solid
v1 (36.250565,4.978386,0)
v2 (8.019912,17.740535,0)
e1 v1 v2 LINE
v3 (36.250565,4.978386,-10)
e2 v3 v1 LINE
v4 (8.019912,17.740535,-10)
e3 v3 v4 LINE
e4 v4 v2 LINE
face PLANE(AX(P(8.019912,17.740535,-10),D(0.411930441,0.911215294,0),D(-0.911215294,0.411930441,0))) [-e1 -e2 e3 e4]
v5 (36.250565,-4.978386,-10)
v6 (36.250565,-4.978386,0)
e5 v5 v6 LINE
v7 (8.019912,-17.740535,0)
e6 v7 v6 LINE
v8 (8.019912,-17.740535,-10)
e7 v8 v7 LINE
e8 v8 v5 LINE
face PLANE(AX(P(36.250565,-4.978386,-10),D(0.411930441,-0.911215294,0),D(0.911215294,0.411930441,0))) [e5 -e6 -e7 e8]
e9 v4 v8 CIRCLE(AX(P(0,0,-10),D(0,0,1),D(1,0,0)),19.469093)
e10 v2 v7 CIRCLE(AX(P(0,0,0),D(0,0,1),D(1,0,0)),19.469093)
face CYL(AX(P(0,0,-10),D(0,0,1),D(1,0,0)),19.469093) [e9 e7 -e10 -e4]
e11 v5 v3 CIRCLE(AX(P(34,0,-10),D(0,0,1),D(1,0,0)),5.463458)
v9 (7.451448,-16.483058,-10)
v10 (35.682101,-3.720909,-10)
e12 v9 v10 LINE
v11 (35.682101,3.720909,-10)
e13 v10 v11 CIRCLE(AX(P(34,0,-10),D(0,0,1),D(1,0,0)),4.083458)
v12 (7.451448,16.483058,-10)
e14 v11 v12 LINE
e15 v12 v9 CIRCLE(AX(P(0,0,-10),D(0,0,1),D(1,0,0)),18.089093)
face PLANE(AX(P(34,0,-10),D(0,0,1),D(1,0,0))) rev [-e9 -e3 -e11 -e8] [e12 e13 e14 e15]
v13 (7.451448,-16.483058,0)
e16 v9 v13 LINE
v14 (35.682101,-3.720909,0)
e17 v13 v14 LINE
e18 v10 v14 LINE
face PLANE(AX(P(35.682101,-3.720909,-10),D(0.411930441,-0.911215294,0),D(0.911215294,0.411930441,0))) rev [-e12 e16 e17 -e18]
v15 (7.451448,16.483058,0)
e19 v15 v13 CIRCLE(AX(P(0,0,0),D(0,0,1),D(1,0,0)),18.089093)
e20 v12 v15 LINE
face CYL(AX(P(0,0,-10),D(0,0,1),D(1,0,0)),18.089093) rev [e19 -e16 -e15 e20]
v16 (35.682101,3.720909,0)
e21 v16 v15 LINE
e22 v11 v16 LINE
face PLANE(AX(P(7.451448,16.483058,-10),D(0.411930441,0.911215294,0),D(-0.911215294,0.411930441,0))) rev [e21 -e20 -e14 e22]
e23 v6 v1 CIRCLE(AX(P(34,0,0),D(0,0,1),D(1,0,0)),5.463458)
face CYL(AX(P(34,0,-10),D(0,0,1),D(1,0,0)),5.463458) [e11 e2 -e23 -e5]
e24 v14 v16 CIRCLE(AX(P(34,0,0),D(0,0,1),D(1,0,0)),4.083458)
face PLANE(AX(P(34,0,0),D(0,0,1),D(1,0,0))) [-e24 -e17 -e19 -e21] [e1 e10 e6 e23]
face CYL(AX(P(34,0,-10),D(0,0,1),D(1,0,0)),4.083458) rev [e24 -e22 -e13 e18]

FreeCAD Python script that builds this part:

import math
import FreeCAD as App
import Part
import Sketcher
from FreeCAD import Vector

doc = App.newDocument("Part")
params = doc.addObject("Spreadsheet::Sheet", "Params")
for row, (alias, value) in enumerate([
    ("pad1_length", "10 mm"),
], start=1):
    params.set(f"A{row}", alias)
    params.set(f"B{row}", "=" + value)
    params.setAlias(f"B{row}", alias)

body = doc.addObject("PartDesign::Body", "Body")

# Sketch on XY plane
sketch1 = doc.addObject("Sketcher::SketchObject", "Sketch")
body.addObject(sketch1)
sketch1.AttachmentSupport = (doc.XY_Plane, [""])
sketch1.MapMode = "FlatFace"
sketch1.addGeometry(Part.LineSegment(Vector(36.250565, 4.978386, 0), Vector(8.019912, 17.740535, 0)), False)
sketch1.addGeometry(Part.ArcOfCircle(Part.Circle(Vector(0, 0, 0), Vector(0, 0, 1), 19.469093), math.radians(65.67384), math.radians(294.32616)), False)
sketch1.addGeometry(Part.LineSegment(Vector(8.019912, -17.740535, 0), Vector(36.250565, -4.978386, 0)), False)
sketch1.addGeometry(Part.ArcOfCircle(Part.Circle(Vector(34, 0, 0), Vector(0, 0, 1), 5.463458), math.radians(-65.67384), math.radians(65.67384)), False)
sketch1.addGeometry(Part.LineSegment(Vector(35.682101, -3.720909, 0), Vector(7.451448, -16.483058, 0)), False)
sketch1.addGeometry(Part.ArcOfCircle(Part.Circle(Vector(0, 0, 0), Vector(0, 0, 1), 18.089093), math.radians(65.67384), math.radians(294.32616)), False)
sketch1.addGeometry(Part.LineSegment(Vector(7.451448, 16.483058, 0), Vector(35.682101, 3.720909, 0)), False)
sketch1.addGeometry(Part.ArcOfCircle(Part.Circle(Vector(34, 0, 0), Vector(0, 0, 1), 4.083458), math.radians(-65.67384), math.radians(65.67384)), False)
sketch1.addConstraint(Sketcher.Constraint("Tangent", 0, 2, 1, 1))
sketch1.addConstraint(Sketcher.Constraint("Tangent", 1, 2, 2, 1))
sketch1.addConstraint(Sketcher.Constraint("Tangent", 2, 2, 3, 1))
sketch1.addConstraint(Sketcher.Constraint("Tangent", 3, 2, 0, 1))
sketch1.addConstraint(Sketcher.Constraint("Tangent", 4, 2, 5, 2))
sketch1.addConstraint(Sketcher.Constraint("Tangent", 5, 1, 6, 1))
sketch1.addConstraint(Sketcher.Constraint("Tangent", 6, 2, 7, 2))
sketch1.addConstraint(Sketcher.Constraint("Tangent", 7, 1, 4, 1))
sketch1.addConstraint(Sketcher.Constraint("Coincident", 1, 3, -1, 1))
sketch1.addConstraint(Sketcher.Constraint("Coincident", 5, 3, -1, 1))
sketch1.addConstraint(Sketcher.Constraint("Coincident", 7, 3, 3, 3))
sketch1.addConstraint(Sketcher.Constraint("PointOnObject", 3, 3, -1))
sketch1.addConstraint(Sketcher.Constraint("Parallel", 2, 4))
sketch1.addConstraint(Sketcher.Constraint("DistanceX", -1, 1, 3, 3, 34.0))
sketch1.addConstraint(Sketcher.Constraint("Radius", 1, 19.469093))
sketch1.addConstraint(Sketcher.Constraint("Radius", 3, 5.463458))
sketch1.addConstraint(Sketcher.Constraint("Radius", 5, 18.089093))
pad1 = doc.addObject("PartDesign::Pad", "Pad")
body.addObject(pad1)
pad1.Profile = sketch1
pad1.setExpression("Length", "Params.pad1_length")
pad1.Reversed = True

doc.recompute()
